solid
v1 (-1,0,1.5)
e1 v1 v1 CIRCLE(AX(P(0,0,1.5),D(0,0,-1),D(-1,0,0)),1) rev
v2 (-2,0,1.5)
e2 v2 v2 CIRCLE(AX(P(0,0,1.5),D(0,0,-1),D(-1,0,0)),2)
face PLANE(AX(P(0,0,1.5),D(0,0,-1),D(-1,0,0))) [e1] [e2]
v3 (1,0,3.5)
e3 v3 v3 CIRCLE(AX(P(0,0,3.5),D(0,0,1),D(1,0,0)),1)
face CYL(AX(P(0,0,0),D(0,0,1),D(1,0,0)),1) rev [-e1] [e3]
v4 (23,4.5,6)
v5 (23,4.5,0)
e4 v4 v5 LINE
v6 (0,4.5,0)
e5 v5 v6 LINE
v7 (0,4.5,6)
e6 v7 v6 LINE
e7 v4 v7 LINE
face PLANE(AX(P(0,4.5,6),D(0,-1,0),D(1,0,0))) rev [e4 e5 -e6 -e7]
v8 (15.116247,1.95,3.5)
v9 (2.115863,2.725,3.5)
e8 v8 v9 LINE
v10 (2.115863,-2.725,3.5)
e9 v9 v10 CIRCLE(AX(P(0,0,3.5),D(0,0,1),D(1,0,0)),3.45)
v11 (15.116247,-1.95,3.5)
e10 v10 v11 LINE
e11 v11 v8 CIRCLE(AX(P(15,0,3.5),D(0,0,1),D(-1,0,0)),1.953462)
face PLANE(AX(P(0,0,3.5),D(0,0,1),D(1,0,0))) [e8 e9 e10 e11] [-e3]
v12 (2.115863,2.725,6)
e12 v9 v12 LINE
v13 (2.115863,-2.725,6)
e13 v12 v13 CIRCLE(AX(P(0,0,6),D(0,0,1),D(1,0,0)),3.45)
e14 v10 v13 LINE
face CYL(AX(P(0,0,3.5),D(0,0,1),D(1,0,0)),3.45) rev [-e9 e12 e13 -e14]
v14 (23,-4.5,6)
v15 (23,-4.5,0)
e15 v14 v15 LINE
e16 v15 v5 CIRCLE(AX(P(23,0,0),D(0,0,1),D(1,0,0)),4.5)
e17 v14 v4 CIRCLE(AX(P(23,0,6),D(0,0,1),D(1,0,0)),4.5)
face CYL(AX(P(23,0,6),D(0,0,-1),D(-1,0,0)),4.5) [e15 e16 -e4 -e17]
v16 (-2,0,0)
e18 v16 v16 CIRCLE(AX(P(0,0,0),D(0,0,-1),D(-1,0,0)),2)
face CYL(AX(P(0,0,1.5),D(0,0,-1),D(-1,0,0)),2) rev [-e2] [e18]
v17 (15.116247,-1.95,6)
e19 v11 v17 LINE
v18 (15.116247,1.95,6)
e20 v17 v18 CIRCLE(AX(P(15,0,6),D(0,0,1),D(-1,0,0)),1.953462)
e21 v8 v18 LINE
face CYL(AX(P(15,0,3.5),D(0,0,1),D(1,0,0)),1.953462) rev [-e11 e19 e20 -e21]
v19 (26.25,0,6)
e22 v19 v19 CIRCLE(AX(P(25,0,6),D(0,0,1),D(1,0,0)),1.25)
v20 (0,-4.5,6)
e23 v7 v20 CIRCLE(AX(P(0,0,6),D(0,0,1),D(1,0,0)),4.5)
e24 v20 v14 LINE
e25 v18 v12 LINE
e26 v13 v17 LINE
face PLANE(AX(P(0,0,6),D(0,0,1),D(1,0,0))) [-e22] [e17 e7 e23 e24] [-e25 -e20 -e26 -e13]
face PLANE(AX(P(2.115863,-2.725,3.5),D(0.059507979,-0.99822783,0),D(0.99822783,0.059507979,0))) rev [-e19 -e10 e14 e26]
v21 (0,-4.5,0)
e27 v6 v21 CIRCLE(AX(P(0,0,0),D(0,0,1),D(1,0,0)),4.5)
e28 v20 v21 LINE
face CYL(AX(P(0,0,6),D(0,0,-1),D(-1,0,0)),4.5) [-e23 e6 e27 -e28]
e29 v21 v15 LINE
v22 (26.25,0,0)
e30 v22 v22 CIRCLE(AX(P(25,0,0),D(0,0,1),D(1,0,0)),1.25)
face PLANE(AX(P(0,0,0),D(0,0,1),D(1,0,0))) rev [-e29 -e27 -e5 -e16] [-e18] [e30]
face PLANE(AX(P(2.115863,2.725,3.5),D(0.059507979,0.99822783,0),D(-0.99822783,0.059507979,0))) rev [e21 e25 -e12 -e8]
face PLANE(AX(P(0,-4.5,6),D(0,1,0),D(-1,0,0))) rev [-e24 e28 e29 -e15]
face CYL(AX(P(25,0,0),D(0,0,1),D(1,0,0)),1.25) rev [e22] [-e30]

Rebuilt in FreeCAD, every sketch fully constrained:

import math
import FreeCAD as App
import Part
import Sketcher
Q = App.Units.Quantity

doc = App.newDocument("Part")
body = doc.addObject("PartDesign::Body", "Body")

# Sketch on XY plane
sketch1 = body.newObject("Sketcher::SketchObject", "Sketch")
sketch1.AttachmentSupport = (doc.getObject("XY_Plane"), [""])
sketch1.MapMode = "FlatFace"
sketch1.addGeometry([
    Part.LineSegment(App.Vector(23, 4.5, 0), App.Vector(0, 4.5, 0)),
    Part.ArcOfCircle(Part.Circle(App.Vector(0, 0, 0), App.Vector(0, 0, 1), 4.5), math.radians(90), math.radians(270)),
    Part.LineSegment(App.Vector(0, -4.5, 0), App.Vector(23, -4.5, 0)),
    Part.ArcOfCircle(Part.Circle(App.Vector(23, 0, 0), App.Vector(0, 0, 1), 4.5), math.radians(-90), math.radians(90)),
], False)
sketch1.addConstraint([
    Sketcher.Constraint("Tangent", 0, 2, 1, 1),
    Sketcher.Constraint("Tangent", 1, 2, 2, 1),
    Sketcher.Constraint("Tangent", 2, 2, 3, 1),
    Sketcher.Constraint("Tangent", 3, 2, 0, 1),
    Sketcher.Constraint("Horizontal", 0),
    Sketcher.Constraint("Horizontal", 2),
    Sketcher.Constraint("Coincident", 1, 3, -1, 1),
    Sketcher.Constraint("Radius", 1, Q("4.5 mm")),
    Sketcher.Constraint("DistanceX", 0, 2, 0, 1, Q("23 mm")),
])
pad1 = body.newObject("PartDesign::Pad", "Pad")
pad1.Profile = sketch1
pad1.Length = 6

# Sketch on XY plane
sketch2 = body.newObject("Sketcher::SketchObject", "Sketch001")
sketch2.AttachmentSupport = (doc.getObject("XY_Plane"), [""])
sketch2.MapMode = "FlatFace"
sketch2.AttachmentOffset = App.Placement(App.Vector(0, 0, 6), App.Rotation())
sketch2.addGeometry([
    Part.LineSegment(App.Vector(15.116247, 1.95, 0), App.Vector(2.115863, 2.725, 0)),
    Part.ArcOfCircle(Part.Circle(App.Vector(0, 0, 0), App.Vector(0, 0, 1), 3.45), math.radians(52.17197), math.radians(307.82803)),
    Part.LineSegment(App.Vector(2.115863, -2.725, 0), App.Vector(15.116247, -1.95, 0)),
    Part.ArcOfCircle(Part.Circle(App.Vector(15, 0, 0), App.Vector(0, 0, 1), 1.953462), math.radians(-86.588428), math.radians(86.588428)),
], False)
sketch2.addConstraint([
    Sketcher.Constraint("Coincident", 0, 2, 1, 1),
    Sketcher.Constraint("Coincident", 1, 2, 2, 1),
    Sketcher.Constraint("Coincident", 2, 2, 3, 1),
    Sketcher.Constraint("Coincident", 3, 2, 0, 1),
    Sketcher.Constraint("Coincident", 1, 3, -1, 1),
    Sketcher.Constraint("PointOnObject", 3, 3, -1),
    Sketcher.Constraint("Radius", 1, Q("3.45 mm")),
    Sketcher.Constraint("DistanceX", -1, 1, 3, 3, Q("15 mm")),
    Sketcher.Constraint("DistanceY", 2, 2, 3, 2, Q("3.9 mm")),
    Sketcher.Constraint("DistanceY", 2, 2, -1, 1, Q("1.95 mm")),
    Sketcher.Constraint("Radius", 3, Q("1.953462 mm")),
    Sketcher.Constraint("DistanceY", 1, 2, 0, 2, Q("5.45 mm")),
    Sketcher.Constraint("DistanceY", -1, 1, 0, 2, Q("2.725 mm")),
])
pocket1 = body.newObject("PartDesign::Pocket", "Pocket")
pocket1.Profile = sketch2
pocket1.Length = 2.5

# Sketch on XY plane
sketch3 = body.newObject("Sketcher::SketchObject", "Sketch002")
sketch3.AttachmentSupport = (doc.getObject("XY_Plane"), [""])
sketch3.MapMode = "FlatFace"
sketch3.AttachmentOffset = App.Placement(App.Vector(0, 0, 6), App.Rotation())
sketch3.addGeometry(Part.Circle(App.Vector(0, 0, 0), App.Vector(0, 0, 1), 1), False)
sketch3.addConstraint([
    Sketcher.Constraint("Coincident", 0, 3, -1, 1),
    Sketcher.Constraint("Diameter", 0, Q("2 mm")),
])
pocket2 = body.newObject("PartDesign::Pocket", "Pocket001")
pocket2.Profile = sketch3
pocket2.Type = "ThroughAll"

# Sketch on XY plane
sketch4 = body.newObject("Sketcher::SketchObject", "Sketch003")
sketch4.AttachmentSupport = (doc.getObject("XY_Plane"), [""])
sketch4.MapMode = "FlatFace"
sketch4.addGeometry(Part.Circle(App.Vector(0, 0, 0), App.Vector(0, 0, 1), 2), False)
sketch4.addConstraint([
    Sketcher.Constraint("Coincident", 0, 3, -1, 1),
    Sketcher.Constraint("Diameter", 0, Q("4 mm")),
])
pocket3 = body.newObject("PartDesign::Pocket", "Pocket002")
pocket3.Profile = sketch4
pocket3.Length = 1.5
pocket3.Reversed = True

# Sketch on XY plane
sketch5 = body.newObject("Sketcher::SketchObject", "Sketch004")
sketch5.AttachmentSupport = (doc.getObject("XY_Plane"), [""])
sketch5.MapMode = "FlatFace"
sketch5.AttachmentOffset = App.Placement(App.Vector(0, 0, 6), App.Rotation())
sketch5.addGeometry(Part.Circle(App.Vector(25, 0, 0), App.Vector(0, 0, 1), 1.25), False)
sketch5.addConstraint([
    Sketcher.Constraint("PointOnObject", 0, 3, -1),
    Sketcher.Constraint("Diameter", 0, Q("2.5 mm")),
    Sketcher.Constraint("DistanceX", -1, 1, 0, 3, Q("25 mm")),
])
pocket4 = body.newObject("PartDesign::Pocket", "Pocket003")
pocket4.Profile = sketch5
pocket4.Type = "ThroughAll"

doc.recompute()
